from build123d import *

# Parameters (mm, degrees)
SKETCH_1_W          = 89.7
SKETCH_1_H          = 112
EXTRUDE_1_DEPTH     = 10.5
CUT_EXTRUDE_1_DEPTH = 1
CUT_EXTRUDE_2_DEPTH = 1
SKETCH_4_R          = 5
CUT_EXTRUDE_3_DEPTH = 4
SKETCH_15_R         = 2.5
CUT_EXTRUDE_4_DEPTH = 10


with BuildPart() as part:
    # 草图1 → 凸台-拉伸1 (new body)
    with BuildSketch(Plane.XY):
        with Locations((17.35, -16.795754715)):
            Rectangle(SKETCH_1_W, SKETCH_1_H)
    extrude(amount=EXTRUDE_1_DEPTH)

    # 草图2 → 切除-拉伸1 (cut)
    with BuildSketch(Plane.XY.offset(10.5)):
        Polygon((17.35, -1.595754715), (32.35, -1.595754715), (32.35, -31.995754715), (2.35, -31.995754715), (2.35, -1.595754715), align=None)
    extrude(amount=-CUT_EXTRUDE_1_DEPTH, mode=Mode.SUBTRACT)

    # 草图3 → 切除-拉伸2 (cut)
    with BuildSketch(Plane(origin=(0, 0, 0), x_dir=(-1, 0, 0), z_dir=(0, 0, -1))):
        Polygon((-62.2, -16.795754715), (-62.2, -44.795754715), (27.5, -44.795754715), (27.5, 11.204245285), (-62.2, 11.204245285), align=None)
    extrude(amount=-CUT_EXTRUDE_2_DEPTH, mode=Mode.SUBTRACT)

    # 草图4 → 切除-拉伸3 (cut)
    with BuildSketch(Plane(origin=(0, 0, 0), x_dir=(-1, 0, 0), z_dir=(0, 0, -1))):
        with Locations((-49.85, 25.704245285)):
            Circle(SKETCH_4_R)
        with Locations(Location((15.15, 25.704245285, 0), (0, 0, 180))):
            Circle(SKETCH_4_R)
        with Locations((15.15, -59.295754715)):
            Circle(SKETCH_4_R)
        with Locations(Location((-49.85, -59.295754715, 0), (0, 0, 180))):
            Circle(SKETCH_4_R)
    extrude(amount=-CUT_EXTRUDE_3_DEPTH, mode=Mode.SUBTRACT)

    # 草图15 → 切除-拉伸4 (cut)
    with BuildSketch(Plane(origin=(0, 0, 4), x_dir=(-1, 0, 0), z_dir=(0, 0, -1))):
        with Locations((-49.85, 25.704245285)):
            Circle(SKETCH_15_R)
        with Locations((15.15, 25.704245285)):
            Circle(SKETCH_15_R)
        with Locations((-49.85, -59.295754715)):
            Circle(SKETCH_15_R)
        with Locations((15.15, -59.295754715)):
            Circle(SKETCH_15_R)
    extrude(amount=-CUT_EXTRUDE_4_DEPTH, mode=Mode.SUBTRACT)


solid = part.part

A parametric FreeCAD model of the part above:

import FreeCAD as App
import Part
import Sketcher
Q = App.Units.Quantity

doc = App.newDocument("Part")
body = doc.addObject("PartDesign::Body", "Body")

# Sketch on XY plane
sketch1 = body.newObject("Sketcher::SketchObject", "Sketch")
sketch1.AttachmentSupport = (doc.getObject("XY_Plane"), [""])
sketch1.MapMode = "FlatFace"
sketch1.addGeometry([
    Part.LineSegment(App.Vector(-28, 39, 0), App.Vector(-28, -73, 0)),
    Part.LineSegment(App.Vector(-28, -73, 0), App.Vector(62, -73, 0)),
    Part.LineSegment(App.Vector(62, -73, 0), App.Vector(62, 39, 0)),
    Part.LineSegment(App.Vector(62, 39, 0), App.Vector(-28, 39, 0)),
], False)
sketch1.addConstraint([
    Sketcher.Constraint("Coincident", 0, 2, 1, 1),
    Sketcher.Constraint("Coincident", 1, 2, 2, 1),
    Sketcher.Constraint("Coincident", 2, 2, 3, 1),
    Sketcher.Constraint("Coincident", 3, 2, 0, 1),
    Sketcher.Constraint("Vertical", 0),
    Sketcher.Constraint("Horizontal", 1),
    Sketcher.Constraint("Vertical", 2),
    Sketcher.Constraint("Horizontal", 3),
    Sketcher.Constraint("DistanceY", 0, 2, 0, 1, Q("112 mm")),
    Sketcher.Constraint("DistanceX", 1, 1, 1, 2, Q("89.7 mm")),
    Sketcher.Constraint("DistanceX", 0, 2, -1, 1, Q("27.5 mm")),
    Sketcher.Constraint("DistanceY", 0, 2, -1, 1, Q("72.795755 mm")),
])
pad1 = body.newObject("PartDesign::Pad", "Pad")
pad1.Profile = sketch1
pad1.Length = 10.5

# Sketch on XY plane
sketch2 = body.newObject("Sketcher::SketchObject", "Sketch001")
sketch2.AttachmentSupport = (doc.getObject("XY_Plane"), [""])
sketch2.MapMode = "FlatFace"
sketch2.AttachmentOffset = App.Placement(App.Vector(0, 0, 10.5), App.Rotation())
sketch2.addGeometry([
    Part.LineSegment(App.Vector(32, -2, 0), App.Vector(2, -2, 0)),
    Part.LineSegment(App.Vector(2, -2, 0), App.Vector(2, -32, 0)),
    Part.LineSegment(App.Vector(2, -32, 0), App.Vector(32, -32, 0)),
    Part.LineSegment(App.Vector(32, -32, 0), App.Vector(32, -2, 0)),
], False)
sketch2.addConstraint([
    Sketcher.Constraint("Coincident", 0, 2, 1, 1),
    Sketcher.Constraint("Coincident", 1, 2, 2, 1),
    Sketcher.Constraint("Coincident", 2, 2, 3, 1),
    Sketcher.Constraint("Coincident", 3, 2, 0, 1),
    Sketcher.Constraint("Horizontal", 0),
    Sketcher.Constraint("Vertical", 1),
    Sketcher.Constraint("Horizontal", 2),
    Sketcher.Constraint("Vertical", 3),
    Sketcher.Constraint("DistanceX", 0, 2, 0, 1, Q("30 mm")),
    Sketcher.Constraint("DistanceY", 1, 2, 1, 1, Q("30.4 mm")),
    Sketcher.Constraint("DistanceX", -1, 1, 0, 2, Q("2.35 mm")),
    Sketcher.Constraint("DistanceY", 0, 2, -1, 1, Q("1.595755 mm")),
])
pocket1 = body.newObject("PartDesign::Pocket", "Pocket")
pocket1.Profile = sketch2
pocket1.Length = 1

# Sketch on XY plane
sketch3 = body.newObject("Sketcher::SketchObject", "Sketch002")
sketch3.AttachmentSupport = (doc.getObject("XY_Plane"), [""])
sketch3.MapMode = "FlatFace"
sketch3.addGeometry([
    Part.LineSegment(App.Vector(62, -45, 0), App.Vector(-28, -45, 0)),
    Part.LineSegment(App.Vector(-28, -45, 0), App.Vector(-28, 11, 0)),
    Part.LineSegment(App.Vector(-28, 11, 0), App.Vector(62, 11, 0)),
    Part.LineSegment(App.Vector(62, 11, 0), App.Vector(62, -45, 0)),
], False)
sketch3.addConstraint([
    Sketcher.Constraint("Coincident", 0, 2, 1, 1),
    Sketcher.Constraint("Coincident", 1, 2, 2, 1),
    Sketcher.Constraint("Coincident", 2, 2, 3, 1),
    Sketcher.Constraint("Coincident", 3, 2, 0, 1),
    Sketcher.Constraint("Horizontal", 0),
    Sketcher.Constraint("Vertical", 1),
    Sketcher.Constraint("Horizontal", 2),
    Sketcher.Constraint("Vertical", 3),
    Sketcher.Constraint("DistanceY", 1, 1, 1, 2, Q("56 mm")),
    Sketcher.Constraint("DistanceX", 0, 2, 0, 1, Q("89.7 mm")),
    Sketcher.Constraint("DistanceX", 0, 2, -1, 1, Q("27.5 mm")),
    Sketcher.Constraint("DistanceY", 0, 2, -1, 1, Q("44.795755 mm")),
])
pocket2 = body.newObject("PartDesign::Pocket", "Pocket001")
pocket2.Profile = sketch3
pocket2.Length = 1
pocket2.Reversed = True

# Sketch on XY plane
sketch4 = body.newObject("Sketcher::SketchObject", "Sketch003")
sketch4.AttachmentSupport = (doc.getObject("XY_Plane"), [""])
sketch4.MapMode = "FlatFace"
sketch4.addGeometry([
    Part.Circle(App.Vector(50, 26, 0), App.Vector(0, 0, 1), 5),
    Part.Circle(App.Vector(-15, 26, 0), App.Vector(0, 0, 1), 5),
    Part.Circle(App.Vector(-15, -59, 0), App.Vector(0, 0, 1), 5),
    Part.Circle(App.Vector(50, -59, 0), App.Vector(0, 0, 1), 5),
], False)
sketch4.addConstraint([
    Sketcher.Constraint("Equal", 0, 1),
    Sketcher.Constraint("Equal", 1, 2),
    Sketcher.Constraint("Equal", 2, 3),
    Sketcher.Constraint("Horizontal", 0, 3, 1, 3),
    Sketcher.Constraint("Horizontal", 2, 3, 3, 3),
    Sketcher.Constraint("Vertical", 1, 3, 2, 3),
    Sketcher.Constraint("Vertical", 0, 3, 3, 3),
    Sketcher.Constraint("Diameter", 0, Q("10 mm")),
    Sketcher.Constraint("DistanceX", 1, 3, 0, 3, Q("65 mm")),
    Sketcher.Constraint("DistanceY", 2, 3, 1, 3, Q("85 mm")),
    Sketcher.Constraint("DistanceX", -1, 1, 0, 3, Q("49.85 mm")),
    Sketcher.Constraint("DistanceY", -1, 1, 0, 3, Q("25.704245 mm")),
])
pocket3 = body.newObject("PartDesign::Pocket", "Pocket002")
pocket3.Profile = sketch4
pocket3.Length = 4
pocket3.Reversed = True

# Sketch on XY plane
sketch5 = body.newObject("Sketcher::SketchObject", "Sketch004")
sketch5.AttachmentSupport = (doc.getObject("XY_Plane"), [""])
sketch5.MapMode = "FlatFace"
sketch5.AttachmentOffset = App.Placement(App.Vector(0, 0, 4), App.Rotation())
sketch5.addGeometry([
    Part.Circle(App.Vector(49.9, 25.7, 0), App.Vector(0, 0, 1), 2.5),
    Part.Circle(App.Vector(-15.2, 25.7, 0), App.Vector(0, 0, 1), 2.5),
    Part.Circle(App.Vector(49.9, -59.3, 0), App.Vector(0, 0, 1), 2.5),
    Part.Circle(App.Vector(-15.2, -59.3, 0), App.Vector(0, 0, 1), 2.5),
], False)
sketch5.addConstraint([
    Sketcher.Constraint("Equal", 0, 1),
    Sketcher.Constraint("Equal", 1, 2),
    Sketcher.Constraint("Equal", 2, 3),
    Sketcher.Constraint("Horizontal", 0, 3, 1, 3),
    Sketcher.Constraint("Horizontal", 2, 3, 3, 3),
    Sketcher.Constraint("Vertical", 0, 3, 2, 3),
    Sketcher.Constraint("Vertical", 1, 3, 3, 3),
    Sketcher.Constraint("Diameter", 0, Q("5 mm")),
    Sketcher.Constraint("DistanceX", 1, 3, 0, 3, Q("65 mm")),
    Sketcher.Constraint("DistanceY", 2, 3, 0, 3, Q("85 mm")),
    Sketcher.Constraint("DistanceX", -1, 1, 0, 3, Q("49.85 mm")),
    Sketcher.Constraint("DistanceY", -1, 1, 0, 3, Q("25.704245 mm")),
])
pocket4 = body.newObject("PartDesign::Pocket", "Pocket003")
pocket4.Profile = sketch5
pocket4.Length = 10
pocket4.Reversed = True

doc.recompute()
